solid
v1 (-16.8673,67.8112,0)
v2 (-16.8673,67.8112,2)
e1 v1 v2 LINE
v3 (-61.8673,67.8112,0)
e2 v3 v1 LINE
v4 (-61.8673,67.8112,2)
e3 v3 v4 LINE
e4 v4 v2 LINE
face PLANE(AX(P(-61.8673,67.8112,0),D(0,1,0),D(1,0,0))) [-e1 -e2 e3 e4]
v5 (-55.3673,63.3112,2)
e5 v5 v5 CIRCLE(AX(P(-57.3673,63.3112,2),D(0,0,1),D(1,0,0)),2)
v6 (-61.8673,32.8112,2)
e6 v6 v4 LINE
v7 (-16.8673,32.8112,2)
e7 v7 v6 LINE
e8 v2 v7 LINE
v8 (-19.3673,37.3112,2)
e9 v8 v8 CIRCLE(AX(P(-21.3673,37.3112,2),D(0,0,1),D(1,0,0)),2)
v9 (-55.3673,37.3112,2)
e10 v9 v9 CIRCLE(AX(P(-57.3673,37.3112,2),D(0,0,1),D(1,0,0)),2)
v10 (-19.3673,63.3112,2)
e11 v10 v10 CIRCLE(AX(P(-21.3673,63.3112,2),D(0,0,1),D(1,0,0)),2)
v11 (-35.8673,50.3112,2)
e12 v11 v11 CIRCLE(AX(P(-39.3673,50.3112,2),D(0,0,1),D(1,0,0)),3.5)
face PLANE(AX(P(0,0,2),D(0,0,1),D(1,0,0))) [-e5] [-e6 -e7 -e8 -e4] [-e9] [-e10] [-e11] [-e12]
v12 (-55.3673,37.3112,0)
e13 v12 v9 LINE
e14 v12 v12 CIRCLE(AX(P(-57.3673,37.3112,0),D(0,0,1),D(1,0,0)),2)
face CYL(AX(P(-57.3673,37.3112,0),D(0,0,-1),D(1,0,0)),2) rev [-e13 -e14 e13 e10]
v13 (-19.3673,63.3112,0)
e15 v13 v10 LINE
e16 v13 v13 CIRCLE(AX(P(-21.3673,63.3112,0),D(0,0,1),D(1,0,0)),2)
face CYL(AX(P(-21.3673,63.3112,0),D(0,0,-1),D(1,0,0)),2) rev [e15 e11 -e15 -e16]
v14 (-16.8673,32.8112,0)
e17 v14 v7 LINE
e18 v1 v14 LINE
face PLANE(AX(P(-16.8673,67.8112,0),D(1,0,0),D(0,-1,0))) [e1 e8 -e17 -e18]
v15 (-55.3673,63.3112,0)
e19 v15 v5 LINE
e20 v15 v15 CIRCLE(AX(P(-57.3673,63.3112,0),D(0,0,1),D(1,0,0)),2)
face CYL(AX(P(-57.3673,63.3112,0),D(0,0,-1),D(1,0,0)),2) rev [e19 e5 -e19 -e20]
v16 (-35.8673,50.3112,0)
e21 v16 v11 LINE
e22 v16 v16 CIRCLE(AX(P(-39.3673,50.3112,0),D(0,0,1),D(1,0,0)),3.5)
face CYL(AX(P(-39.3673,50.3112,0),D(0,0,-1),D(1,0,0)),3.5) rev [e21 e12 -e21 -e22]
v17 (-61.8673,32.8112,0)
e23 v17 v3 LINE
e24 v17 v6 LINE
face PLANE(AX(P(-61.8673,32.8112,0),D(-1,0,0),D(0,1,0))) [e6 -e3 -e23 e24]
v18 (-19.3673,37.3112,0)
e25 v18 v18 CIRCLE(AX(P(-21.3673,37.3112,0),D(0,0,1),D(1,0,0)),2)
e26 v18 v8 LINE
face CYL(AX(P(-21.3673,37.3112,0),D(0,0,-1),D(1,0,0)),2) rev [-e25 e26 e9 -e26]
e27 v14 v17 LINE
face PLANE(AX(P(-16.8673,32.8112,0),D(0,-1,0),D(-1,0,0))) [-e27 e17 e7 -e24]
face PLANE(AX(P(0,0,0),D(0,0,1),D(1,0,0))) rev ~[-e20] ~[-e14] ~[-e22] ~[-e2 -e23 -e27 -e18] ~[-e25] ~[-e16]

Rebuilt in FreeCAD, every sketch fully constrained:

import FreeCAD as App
import Part
import Sketcher
Q = App.Units.Quantity


def add_polygon(sketch, points):
    """Adds a closed chain of lines whose ends are joined by coincident constraints."""
    first, n = sketch.GeometryCount, len(points)
    for a, b in zip(points, points[1:] + points[:1]):
        sketch.addGeometry(Part.LineSegment(App.Vector(*a, 0), App.Vector(*b, 0)), False)
    for i in range(n):
        sketch.addConstraint(Sketcher.Constraint("Coincident", first + i, 2, first + (i + 1) % n, 1))

doc = App.newDocument("Part")
params = doc.addObject("Spreadsheet::Sheet", "Params")
for row, (alias, value) in enumerate([
    ("sketch1_diameter", "4 mm"),
    ("sketch1_diameter2", "7 mm"),
    ("sketch1_width", "45 mm"),
    ("sketch1_height", "35 mm"),
    ("pad1_length", "2 mm"),
], start=1):
    params.set(f"A{row}", alias)
    params.set(f"B{row}", "=" + value)
    params.setAlias(f"B{row}", alias)

body = doc.addObject("PartDesign::Body", "Body")

# Sketch on XY plane
sketch1 = body.newObject("Sketcher::SketchObject", "Sketch")
sketch1.AttachmentSupport = (doc.getObject("XY_Plane"), [""])
sketch1.MapMode = "FlatFace"
add_polygon(sketch1, [(-16.9, 32.8), (-16.9, 67.8), (-61.9, 67.8), (-61.9, 32.8)])  # lines 0-3
sketch1.addGeometry(Part.Circle(App.Vector(-57.4, 37.3, 0), App.Vector(0, 0, 1), 2), False)  # 4
sketch1.addGeometry(Part.Circle(App.Vector(-21.4, 37.3, 0), App.Vector(0, 0, 1), 2), False)  # 5
sketch1.addGeometry(Part.Circle(App.Vector(-57.4, 63.3, 0), App.Vector(0, 0, 1), 2), False)  # 6
sketch1.addGeometry(Part.Circle(App.Vector(-39.4, 50.3, 0), App.Vector(0, 0, 1), 3.5), False)  # 7
sketch1.addGeometry(Part.Circle(App.Vector(-21.4, 63.3, 0), App.Vector(0, 0, 1), 2), False)  # 8
sketch1.addConstraint([
    Sketcher.Constraint("Vertical", 0),
    Sketcher.Constraint("Horizontal", 1),
    Sketcher.Constraint("Vertical", 2),
    Sketcher.Constraint("Horizontal", 3),
    Sketcher.Constraint("Equal", 4, 5),
    Sketcher.Constraint("Equal", 5, 6),
    Sketcher.Constraint("Equal", 6, 8),
    Sketcher.Constraint("Horizontal", 4, 3, 5, 3),
    Sketcher.Constraint("Horizontal", 6, 3, 8, 3),
    Sketcher.Constraint("Vertical", 4, 3, 6, 3),
    Sketcher.Constraint("Vertical", 5, 3, 8, 3),
    Sketcher.Constraint("Diameter", 4, Q("4 mm")),
    Sketcher.Constraint("Diameter", 7, Q("7 mm")),
    Sketcher.Constraint("DistanceX", 1, 2, 1, 1, Q("45 mm")),
    Sketcher.Constraint("DistanceY", 0, 1, 0, 2, Q("35 mm")),
    Sketcher.Constraint("DistanceX", 4, 3, 7, 3, Q("18 mm")),
    Sketcher.Constraint("DistanceY", 4, 3, 7, 3, Q("13 mm")),
    Sketcher.Constraint("DistanceX", 7, 3, 5, 3, Q("18 mm")),
    Sketcher.Constraint("DistanceY", 7, 3, 6, 3, Q("13 mm")),
    Sketcher.Constraint("DistanceX", 7, 3, 0, 2, Q("22.5 mm")),
    Sketcher.Constraint("DistanceY", 7, 3, 0, 2, Q("17.5 mm")),
    Sketcher.Constraint("DistanceX", 4, 3, -1, 1, Q("57.3673 mm")),
    Sketcher.Constraint("DistanceY", -1, 1, 4, 3, Q("37.3112 mm")),
])
sketch1.setExpression("Constraints[15]", "Params.sketch1_diameter")
sketch1.setExpression("Constraints[16]", "Params.sketch1_diameter2")
sketch1.setExpression("Constraints[17]", "Params.sketch1_width")
sketch1.setExpression("Constraints[18]", "Params.sketch1_height")
pad1 = body.newObject("PartDesign::Pad", "Pad")
pad1.Profile = sketch1
pad1.setExpression("Length", "Params.pad1_length")

doc.recompute()
